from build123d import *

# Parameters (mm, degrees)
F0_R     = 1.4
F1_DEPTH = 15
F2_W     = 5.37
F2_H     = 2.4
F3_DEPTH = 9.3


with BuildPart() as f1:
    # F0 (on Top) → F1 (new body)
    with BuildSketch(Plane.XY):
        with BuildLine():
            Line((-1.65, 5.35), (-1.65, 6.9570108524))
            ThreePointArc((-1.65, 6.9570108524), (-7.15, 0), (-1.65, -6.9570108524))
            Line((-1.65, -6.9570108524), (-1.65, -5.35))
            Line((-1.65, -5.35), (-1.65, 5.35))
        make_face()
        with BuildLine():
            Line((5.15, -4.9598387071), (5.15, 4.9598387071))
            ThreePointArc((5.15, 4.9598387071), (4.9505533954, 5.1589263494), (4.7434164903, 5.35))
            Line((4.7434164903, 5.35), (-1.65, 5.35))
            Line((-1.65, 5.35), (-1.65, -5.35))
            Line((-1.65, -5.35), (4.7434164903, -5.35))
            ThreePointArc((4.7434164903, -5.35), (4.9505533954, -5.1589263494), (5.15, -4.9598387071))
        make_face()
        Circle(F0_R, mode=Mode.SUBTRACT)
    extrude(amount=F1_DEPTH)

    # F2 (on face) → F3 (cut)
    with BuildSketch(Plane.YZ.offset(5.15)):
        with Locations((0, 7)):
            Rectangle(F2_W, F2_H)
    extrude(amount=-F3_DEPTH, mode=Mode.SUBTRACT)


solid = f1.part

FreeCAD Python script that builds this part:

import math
import FreeCAD as App
import Part
import Sketcher

V = App.Vector
Q = App.Units.Quantity


def add_polygon(sketch, points):
    """Adds a closed chain of lines whose ends are joined by coincident constraints."""
    first, n = sketch.GeometryCount, len(points)
    for a, b in zip(points, points[1:] + points[:1]):
        sketch.addGeometry(Part.LineSegment(App.Vector(*a, 0), App.Vector(*b, 0)), False)
    for i in range(n):
        sketch.addConstraint(Sketcher.Constraint("Coincident", first + i, 2, first + (i + 1) % n, 1))

doc = App.newDocument("Part")
params = doc.addObject("Spreadsheet::Sheet", "Params")
for row, (alias, value) in enumerate([
    ("sketch1_diameter", "2.8 mm"),
    ("sketch1_radius", "7.15 mm"),
    ("pad1_length", "15 mm"),
    ("sketch2_height", "2.4 mm"),
    ("sketch2_width", "5.37 mm"),
    ("pocket1_length", "9.3 mm"),
], start=1):
    params.set(f"A{row}", alias)
    params.set(f"B{row}", "=" + value)
    params.setAlias(f"B{row}", alias)

body = doc.addObject("PartDesign::Body", "Body")

sketch1 = body.newObject("Sketcher::SketchObject", "Sketch")
sketch1.AttachmentSupport = (doc.getObject("XY_Plane"), [""])
sketch1.MapMode = "FlatFace"
sketch1.addGeometry(Part.ArcOfCircle(Part.Circle(V(0, 0, 0), V(0, 0, 1), 7.15), math.radians(103.342364), math.radians(256.657636)), False)
sketch1.addGeometry(Part.LineSegment(V(-1.65, -6.957011, 0), V(-1.65, -5.35, 0)), False)
sketch1.addGeometry(Part.LineSegment(V(-1.65, -5.35, 0), V(4.743416, -5.35, 0)), False)
sketch1.addGeometry(Part.ArcOfCircle(Part.Circle(V(0, 0, 0), V(0, 0, 1), 7.15), math.radians(-48.439165), math.radians(-43.922421)), False)
sketch1.addGeometry(Part.LineSegment(V(5.15, -4.959839, 0), V(5.15, 4.959839, 0)), False)
sketch1.addGeometry(Part.ArcOfCircle(Part.Circle(V(0, 0, 0), V(0, 0, 1), 7.15), math.radians(43.922421), math.radians(48.439165)), False)
sketch1.addGeometry(Part.LineSegment(V(4.743416, 5.35, 0), V(-1.65, 5.35, 0)), False)
sketch1.addGeometry(Part.LineSegment(V(-1.65, 5.35, 0), V(-1.65, 6.957011, 0)), False)
sketch1.addGeometry(Part.Circle(V(0, 0, 0), V(0, 0, 1), 1.4), False)
sketch1.addConstraint(Sketcher.Constraint("Coincident", 0, 2, 1, 1))
sketch1.addConstraint(Sketcher.Constraint("Coincident", 1, 2, 2, 1))
sketch1.addConstraint(Sketcher.Constraint("Coincident", 2, 2, 3, 1))
sketch1.addConstraint(Sketcher.Constraint("Coincident", 3, 2, 4, 1))
sketch1.addConstraint(Sketcher.Constraint("Coincident", 4, 2, 5, 1))
sketch1.addConstraint(Sketcher.Constraint("Coincident", 5, 2, 6, 1))
sketch1.addConstraint(Sketcher.Constraint("Coincident", 6, 2, 7, 1))
sketch1.addConstraint(Sketcher.Constraint("Coincident", 7, 2, 0, 1))
sketch1.addConstraint(Sketcher.Constraint("Vertical", 1))
sketch1.addConstraint(Sketcher.Constraint("Horizontal", 2))
sketch1.addConstraint(Sketcher.Constraint("Vertical", 4))
sketch1.addConstraint(Sketcher.Constraint("Horizontal", 6))
sketch1.addConstraint(Sketcher.Constraint("Vertical", 7))
sketch1.addConstraint(Sketcher.Constraint("Coincident", 0, 3, -1, 1))
sketch1.addConstraint(Sketcher.Constraint("Coincident", 3, 3, -1, 1))
sketch1.addConstraint(Sketcher.Constraint("Coincident", 5, 3, -1, 1))
sketch1.addConstraint(Sketcher.Constraint("Coincident", 8, 3, -1, 1))
sketch1.addConstraint(Sketcher.Constraint("Equal", 0, 3))
sketch1.addConstraint(Sketcher.Constraint("Equal", 3, 5))
sketch1.addConstraint(Sketcher.Constraint("Symmetric", 1, 2, 6, 2, -1))
sketch1.addConstraint(Sketcher.Constraint("Diameter", 8, Q("2.8 mm")))
sketch1.addConstraint(Sketcher.Constraint("Radius", 0, Q("7.15 mm")))
sketch1.addConstraint(Sketcher.Constraint("DistanceX", 1, 2, 3, 2, Q("6.8 mm")))
sketch1.addConstraint(Sketcher.Constraint("DistanceX", 0, 2, -1, 1, Q("1.65 mm")))
sketch1.addConstraint(Sketcher.Constraint("DistanceY", 1, 2, -1, 1, Q("5.35 mm")))
sketch1.setExpression("Constraints[20]", "Params.sketch1_diameter")
sketch1.setExpression("Constraints[21]", "Params.sketch1_radius")
pad1 = body.newObject("PartDesign::Pad", "Pad")
pad1.Profile = sketch1
pad1.setExpression("Length", "Params.pad1_length")

sketch2 = body.newObject("Sketcher::SketchObject", "Sketch001")
sketch2.AttachmentSupport = (doc.getObject("YZ_Plane"), [""])
sketch2.MapMode = "FlatFace"
sketch2.AttachmentOffset = App.Placement(V(0, 0, 5.15), App.Rotation())
add_polygon(sketch2, [(-2.685, 8.2), (-2.685, 5.8), (2.685, 5.8), (2.685, 8.2)])
sketch2.addConstraint(Sketcher.Constraint("Vertical", 0))
sketch2.addConstraint(Sketcher.Constraint("Horizontal", 1))
sketch2.addConstraint(Sketcher.Constraint("Vertical", 2))
sketch2.addConstraint(Sketcher.Constraint("Horizontal", 3))
sketch2.addConstraint(Sketcher.Constraint("DistanceY", 0, 2, 0, 1, Q("2.4 mm")))
sketch2.addConstraint(Sketcher.Constraint("DistanceX", 1, 1, 1, 2, Q("5.37 mm")))
sketch2.addConstraint(Sketcher.Constraint("DistanceY", -1, 1, 0, 2, Q("5.8 mm")))
sketch2.addConstraint(Sketcher.Constraint("DistanceX", 0, 2, -1, 1, Q("2.685 mm")))
sketch2.setExpression("Constraints[8]", "Params.sketch2_height")
sketch2.setExpression("Constraints[9]", "Params.sketch2_width")
pocket1 = body.newObject("PartDesign::Pocket", "Pocket")
pocket1.Profile = sketch2
pocket1.setExpression("Length", "Params.pocket1_length")

doc.recompute()
